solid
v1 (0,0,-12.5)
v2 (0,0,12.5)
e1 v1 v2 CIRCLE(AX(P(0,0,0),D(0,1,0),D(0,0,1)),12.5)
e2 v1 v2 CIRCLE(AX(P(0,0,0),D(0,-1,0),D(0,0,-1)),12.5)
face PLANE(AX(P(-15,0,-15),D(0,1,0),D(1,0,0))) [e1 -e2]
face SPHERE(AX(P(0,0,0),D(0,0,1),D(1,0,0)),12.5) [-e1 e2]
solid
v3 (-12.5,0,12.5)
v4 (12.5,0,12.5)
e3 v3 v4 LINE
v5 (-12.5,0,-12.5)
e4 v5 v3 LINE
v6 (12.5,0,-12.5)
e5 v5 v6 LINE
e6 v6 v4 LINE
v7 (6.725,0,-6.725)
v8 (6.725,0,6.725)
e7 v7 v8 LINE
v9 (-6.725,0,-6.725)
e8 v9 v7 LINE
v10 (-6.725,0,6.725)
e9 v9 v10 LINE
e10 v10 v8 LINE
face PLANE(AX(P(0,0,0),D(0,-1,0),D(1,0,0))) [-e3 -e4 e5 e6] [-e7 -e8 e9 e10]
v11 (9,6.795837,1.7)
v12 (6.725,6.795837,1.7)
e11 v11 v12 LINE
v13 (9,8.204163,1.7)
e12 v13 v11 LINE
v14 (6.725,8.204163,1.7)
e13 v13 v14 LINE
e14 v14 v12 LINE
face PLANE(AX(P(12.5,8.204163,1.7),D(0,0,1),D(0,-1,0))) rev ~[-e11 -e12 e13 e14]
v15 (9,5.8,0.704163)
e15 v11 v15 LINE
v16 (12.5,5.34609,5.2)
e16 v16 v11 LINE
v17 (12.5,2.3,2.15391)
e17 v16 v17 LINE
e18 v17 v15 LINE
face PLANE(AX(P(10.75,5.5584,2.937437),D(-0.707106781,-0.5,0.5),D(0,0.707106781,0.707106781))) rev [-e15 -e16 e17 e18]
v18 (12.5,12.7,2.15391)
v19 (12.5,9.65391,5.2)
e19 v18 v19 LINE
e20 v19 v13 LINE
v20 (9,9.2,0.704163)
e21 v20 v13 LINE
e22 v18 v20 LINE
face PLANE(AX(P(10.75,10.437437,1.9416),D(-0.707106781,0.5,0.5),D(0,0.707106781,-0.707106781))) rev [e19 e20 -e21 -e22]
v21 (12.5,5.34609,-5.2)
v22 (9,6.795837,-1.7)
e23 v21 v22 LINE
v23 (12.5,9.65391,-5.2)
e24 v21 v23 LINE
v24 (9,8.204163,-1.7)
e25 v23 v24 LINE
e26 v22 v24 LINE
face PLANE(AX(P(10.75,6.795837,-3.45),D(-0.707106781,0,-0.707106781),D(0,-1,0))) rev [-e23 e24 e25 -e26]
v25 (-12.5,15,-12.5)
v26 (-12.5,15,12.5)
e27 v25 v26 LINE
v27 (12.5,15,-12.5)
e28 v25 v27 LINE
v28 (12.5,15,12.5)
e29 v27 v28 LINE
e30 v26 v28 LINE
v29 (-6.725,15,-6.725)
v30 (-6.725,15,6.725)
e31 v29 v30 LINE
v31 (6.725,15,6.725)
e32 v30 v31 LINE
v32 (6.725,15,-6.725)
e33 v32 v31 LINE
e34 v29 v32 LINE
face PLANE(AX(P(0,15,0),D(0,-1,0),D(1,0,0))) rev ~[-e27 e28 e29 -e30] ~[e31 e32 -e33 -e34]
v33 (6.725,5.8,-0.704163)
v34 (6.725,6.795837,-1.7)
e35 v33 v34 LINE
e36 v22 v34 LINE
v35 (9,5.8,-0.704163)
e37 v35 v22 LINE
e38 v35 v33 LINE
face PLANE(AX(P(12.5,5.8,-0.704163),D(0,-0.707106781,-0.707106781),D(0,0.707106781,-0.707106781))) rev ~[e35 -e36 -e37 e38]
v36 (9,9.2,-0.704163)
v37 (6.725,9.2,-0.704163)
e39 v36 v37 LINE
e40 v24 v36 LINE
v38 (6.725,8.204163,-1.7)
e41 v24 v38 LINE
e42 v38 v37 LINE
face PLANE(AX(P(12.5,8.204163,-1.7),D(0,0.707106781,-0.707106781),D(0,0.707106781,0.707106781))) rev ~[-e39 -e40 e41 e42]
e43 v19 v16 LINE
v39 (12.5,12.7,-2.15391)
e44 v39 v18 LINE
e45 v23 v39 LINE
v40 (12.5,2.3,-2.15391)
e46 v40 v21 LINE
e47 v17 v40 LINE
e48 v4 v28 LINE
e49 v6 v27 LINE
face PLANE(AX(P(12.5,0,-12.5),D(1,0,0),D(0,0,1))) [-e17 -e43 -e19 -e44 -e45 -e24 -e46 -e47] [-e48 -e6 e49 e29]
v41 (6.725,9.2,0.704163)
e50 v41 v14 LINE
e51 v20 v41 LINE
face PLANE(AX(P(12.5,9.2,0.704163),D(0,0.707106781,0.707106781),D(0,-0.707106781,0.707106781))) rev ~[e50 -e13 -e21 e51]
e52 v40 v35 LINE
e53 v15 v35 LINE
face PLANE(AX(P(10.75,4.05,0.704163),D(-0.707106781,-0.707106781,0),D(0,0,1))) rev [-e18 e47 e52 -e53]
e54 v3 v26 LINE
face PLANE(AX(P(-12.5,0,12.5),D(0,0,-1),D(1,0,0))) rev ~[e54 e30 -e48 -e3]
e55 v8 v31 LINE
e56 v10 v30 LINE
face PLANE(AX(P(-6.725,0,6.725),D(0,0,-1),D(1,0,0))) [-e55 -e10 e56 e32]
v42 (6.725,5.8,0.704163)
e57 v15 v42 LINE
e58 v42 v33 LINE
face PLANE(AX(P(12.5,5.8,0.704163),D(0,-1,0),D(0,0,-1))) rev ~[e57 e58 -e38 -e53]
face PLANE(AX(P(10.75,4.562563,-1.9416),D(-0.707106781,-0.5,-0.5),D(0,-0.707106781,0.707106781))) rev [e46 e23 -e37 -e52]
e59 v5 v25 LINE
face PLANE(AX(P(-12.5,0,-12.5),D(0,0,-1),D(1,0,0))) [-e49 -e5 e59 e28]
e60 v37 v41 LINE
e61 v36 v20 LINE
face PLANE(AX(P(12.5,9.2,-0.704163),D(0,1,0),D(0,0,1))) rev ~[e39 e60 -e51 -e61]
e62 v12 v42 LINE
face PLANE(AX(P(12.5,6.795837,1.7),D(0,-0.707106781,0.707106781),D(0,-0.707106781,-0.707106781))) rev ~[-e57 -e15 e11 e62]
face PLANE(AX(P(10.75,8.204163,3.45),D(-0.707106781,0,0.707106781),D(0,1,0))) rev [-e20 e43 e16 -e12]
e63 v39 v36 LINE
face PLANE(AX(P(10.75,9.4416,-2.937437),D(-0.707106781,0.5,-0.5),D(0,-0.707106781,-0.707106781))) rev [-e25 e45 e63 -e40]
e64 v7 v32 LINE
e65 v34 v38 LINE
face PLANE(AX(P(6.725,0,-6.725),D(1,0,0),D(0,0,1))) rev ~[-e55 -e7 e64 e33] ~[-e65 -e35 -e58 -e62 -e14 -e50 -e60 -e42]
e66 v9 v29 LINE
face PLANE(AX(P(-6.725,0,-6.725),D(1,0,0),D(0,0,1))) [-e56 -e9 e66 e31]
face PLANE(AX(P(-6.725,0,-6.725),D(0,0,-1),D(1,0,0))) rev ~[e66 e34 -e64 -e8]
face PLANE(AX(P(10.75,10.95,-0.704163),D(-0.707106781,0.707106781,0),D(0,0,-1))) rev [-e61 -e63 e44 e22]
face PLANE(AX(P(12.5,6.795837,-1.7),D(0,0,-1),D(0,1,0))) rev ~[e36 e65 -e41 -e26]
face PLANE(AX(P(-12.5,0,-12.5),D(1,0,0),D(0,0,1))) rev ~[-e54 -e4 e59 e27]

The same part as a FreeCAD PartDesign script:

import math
import FreeCAD as App
import Part
import Sketcher
from FreeCAD import Vector


def edges_at(feature, points):
    """Names of the edges that pass closest to the given points."""
    edges = feature.Shape.Edges
    near = lambda p: min(range(len(edges)), key=lambda i: edges[i].distToShape(Part.Vertex(*p))[0])
    return sorted({f"Edge{near(p) + 1}" for p in points})


def add_polygon(sketch, points):
    """Adds a closed chain of lines whose ends are joined by coincident constraints."""
    first, n = sketch.GeometryCount, len(points)
    for a, b in zip(points, points[1:] + points[:1]):
        sketch.addGeometry(Part.LineSegment(App.Vector(*a, 0), App.Vector(*b, 0)), False)
    for i in range(n):
        sketch.addConstraint(Sketcher.Constraint("Coincident", first + i, 2, first + (i + 1) % n, 1))

doc = App.newDocument("Part")
body = doc.addObject("PartDesign::Body", "Body")

sketch1 = doc.addObject("Sketcher::SketchObject", "Sketch")
body.addObject(sketch1)
sketch1.AttachmentSupport = (doc.XY_Plane, [""])
sketch1.MapMode = "FlatFace"
sketch1.AttachmentOffset = App.Placement(Vector(0, 0, -15), App.Rotation())
add_polygon(sketch1, [(-15, 30), (-15, 0), (15, 0), (15, 30)])
sketch1.addConstraint(Sketcher.Constraint("Vertical", 0))
sketch1.addConstraint(Sketcher.Constraint("Horizontal", 1))
sketch1.addConstraint(Sketcher.Constraint("Vertical", 2))
sketch1.addConstraint(Sketcher.Constraint("Horizontal", 3))
sketch1.addConstraint(Sketcher.Constraint("Symmetric", 0, 2, 1, 2, -1, 1))
sketch1.addConstraint(Sketcher.Constraint("Equal", 3, 0))
sketch1.addConstraint(Sketcher.Constraint("DistanceX", 1, 1, 1, 2, 30.0))
pad1 = doc.addObject("PartDesign::Pad", "Pad")
body.addObject(pad1)
pad1.Profile = sketch1
pad1.Length = 30
body2 = doc.addObject("PartDesign::Body", "Body001")

sketch2 = doc.addObject("Sketcher::SketchObject", "Sketch001")
body2.addObject(sketch2)
sketch2.AttachmentSupport = (doc.getObject("XZ_Plane001"), [""])
sketch2.MapMode = "FlatFace"
sketch2.addGeometry(Part.ArcOfCircle(Part.Circle(Vector(0, 0, 0), Vector(0, 0, 1), 12), math.radians(-90), math.radians(90)), False)
sketch2.addGeometry(Part.LineSegment(Vector(0, 12, 0), Vector(0, -12, 0)), False)
sketch2.addConstraint(Sketcher.Constraint("Coincident", 0, 1, 1, 2))
sketch2.addConstraint(Sketcher.Constraint("Coincident", 1, 1, 0, 2))
sketch2.addConstraint(Sketcher.Constraint("Vertical", 1))
sketch2.addConstraint(Sketcher.Constraint("Coincident", 0, 3, -1, 1))
sketch2.addConstraint(Sketcher.Constraint("PointOnObject", 0, 1, -2))
sketch2.addConstraint(Sketcher.Constraint("Radius", 0, 12.5))
revolution = doc.addObject("PartDesign::Revolution", "Revolution")
body2.addObject(revolution)
revolution.Profile = sketch2
revolution.ReferenceAxis = (sketch2, ["V_Axis"])
revolution.Angle = 360
doc.recompute()

boolean = doc.addObject("PartDesign::Boolean", "Boolean")
body2.addObject(boolean)
boolean.Type = "Cut"
boolean.addObjects([body])
body3 = doc.addObject("PartDesign::Body", "Body002")

sketch3 = doc.addObject("Sketcher::SketchObject", "Sketch002")
body3.addObject(sketch3)
sketch3.AttachmentSupport = (doc.getObject("XZ_Plane002"), [""])
sketch3.MapMode = "FlatFace"
add_polygon(sketch3, [(-12, 12), (-12, -12), (12, -12), (12, 12)])
add_polygon(sketch3, [(7, -7), (-7, -7), (-7, 7), (7, 7)])
sketch3.addConstraint(Sketcher.Constraint("Vertical", 0))
sketch3.addConstraint(Sketcher.Constraint("Horizontal", 1))
sketch3.addConstraint(Sketcher.Constraint("Vertical", 2))
sketch3.addConstraint(Sketcher.Constraint("Horizontal", 3))
sketch3.addConstraint(Sketcher.Constraint("Horizontal", 4))
sketch3.addConstraint(Sketcher.Constraint("Vertical", 5))
sketch3.addConstraint(Sketcher.Constraint("Horizontal", 6))
sketch3.addConstraint(Sketcher.Constraint("Vertical", 7))
sketch3.addConstraint(Sketcher.Constraint("Symmetric", 0, 2, 2, 2, -1, 1))
sketch3.addConstraint(Sketcher.Constraint("Symmetric", 4, 2, 6, 2, -1, 1))
sketch3.addConstraint(Sketcher.Constraint("Equal", 3, 0))
sketch3.addConstraint(Sketcher.Constraint("Equal", 6, 5))
sketch3.addConstraint(Sketcher.Constraint("DistanceX", 1, 1, 1, 2, 25.0))
sketch3.addConstraint(Sketcher.Constraint("DistanceX", 4, 2, 4, 1, 13.45))
pad2 = doc.addObject("PartDesign::Pad", "Pad001")
body3.addObject(pad2)
pad2.Profile = sketch3
pad2.Length = 15
pad2.Reversed = True

sketch4 = doc.addObject("Sketcher::SketchObject", "Sketch003")
body3.addObject(sketch4)
sketch4.AttachmentSupport = (doc.getObject("YZ_Plane002"), [""])
sketch4.MapMode = "FlatFace"
sketch4.AttachmentOffset = App.Placement(Vector(0, 0, 12.5), App.Rotation())
add_polygon(sketch4, [(8.2, 1.7), (6.8, 1.7), (5.8, 0.7), (5.8, -0.7), (6.8, -1.7), (8.2, -1.7), (9.2, -0.7), (9.2, 0.7)])
sketch4.addConstraint(Sketcher.Constraint("Horizontal", 0))
sketch4.addConstraint(Sketcher.Constraint("Vertical", 2))
sketch4.addConstraint(Sketcher.Constraint("Horizontal", 4))
sketch4.addConstraint(Sketcher.Constraint("Vertical", 6))
sketch4.addConstraint(Sketcher.Constraint("Symmetric", 0, 2, 3, 2, -1))
sketch4.addConstraint(Sketcher.Constraint("Perpendicular", 1, 3))
sketch4.addConstraint(Sketcher.Constraint("Perpendicular", 3, 5))
sketch4.addConstraint(Sketcher.Constraint("Perpendicular", 5, 7))
sketch4.addConstraint(Sketcher.Constraint("Horizontal", 2, 2, 5, 2))
sketch4.addConstraint(Sketcher.Constraint("Horizontal", 1, 2, 6, 2))
sketch4.addConstraint(Sketcher.Constraint("Vertical", 4, 2, 7, 2))
sketch4.addConstraint(Sketcher.Constraint("Equal", 4, 2))
sketch4.addConstraint(Sketcher.Constraint("DistanceY", -1, 1, 0, 2, 1.7))
sketch4.addConstraint(Sketcher.Constraint("DistanceX", -1, 1, 1, 2, 5.8))
sketch4.addConstraint(Sketcher.Constraint("DistanceX", 0, 2, 0, 1, 1.408326))
pocket1 = doc.addObject("PartDesign::Pocket", "Pocket")
body3.addObject(pocket1)
pocket1.Profile = sketch4
pocket1.Length = 6
doc.recompute()

chamfer = doc.addObject("PartDesign::Chamfer", "Chamfer")
body3.addObject(chamfer)
chamfer.Base = (pocket1, edges_at(pocket1, [
    (12.5, 6.298, 1.202),
    (12.5, 7.5, 1.7),
    (12.5, 8.702, 1.202),
    (12.5, 9.2, 0),
    (12.5, 8.702, -1.202),
    (12.5, 7.5, -1.7),
    (12.5, 6.298, -1.202),
    (12.5, 5.8, 0),
]))
chamfer.Size = 3.5

doc.recompute()
